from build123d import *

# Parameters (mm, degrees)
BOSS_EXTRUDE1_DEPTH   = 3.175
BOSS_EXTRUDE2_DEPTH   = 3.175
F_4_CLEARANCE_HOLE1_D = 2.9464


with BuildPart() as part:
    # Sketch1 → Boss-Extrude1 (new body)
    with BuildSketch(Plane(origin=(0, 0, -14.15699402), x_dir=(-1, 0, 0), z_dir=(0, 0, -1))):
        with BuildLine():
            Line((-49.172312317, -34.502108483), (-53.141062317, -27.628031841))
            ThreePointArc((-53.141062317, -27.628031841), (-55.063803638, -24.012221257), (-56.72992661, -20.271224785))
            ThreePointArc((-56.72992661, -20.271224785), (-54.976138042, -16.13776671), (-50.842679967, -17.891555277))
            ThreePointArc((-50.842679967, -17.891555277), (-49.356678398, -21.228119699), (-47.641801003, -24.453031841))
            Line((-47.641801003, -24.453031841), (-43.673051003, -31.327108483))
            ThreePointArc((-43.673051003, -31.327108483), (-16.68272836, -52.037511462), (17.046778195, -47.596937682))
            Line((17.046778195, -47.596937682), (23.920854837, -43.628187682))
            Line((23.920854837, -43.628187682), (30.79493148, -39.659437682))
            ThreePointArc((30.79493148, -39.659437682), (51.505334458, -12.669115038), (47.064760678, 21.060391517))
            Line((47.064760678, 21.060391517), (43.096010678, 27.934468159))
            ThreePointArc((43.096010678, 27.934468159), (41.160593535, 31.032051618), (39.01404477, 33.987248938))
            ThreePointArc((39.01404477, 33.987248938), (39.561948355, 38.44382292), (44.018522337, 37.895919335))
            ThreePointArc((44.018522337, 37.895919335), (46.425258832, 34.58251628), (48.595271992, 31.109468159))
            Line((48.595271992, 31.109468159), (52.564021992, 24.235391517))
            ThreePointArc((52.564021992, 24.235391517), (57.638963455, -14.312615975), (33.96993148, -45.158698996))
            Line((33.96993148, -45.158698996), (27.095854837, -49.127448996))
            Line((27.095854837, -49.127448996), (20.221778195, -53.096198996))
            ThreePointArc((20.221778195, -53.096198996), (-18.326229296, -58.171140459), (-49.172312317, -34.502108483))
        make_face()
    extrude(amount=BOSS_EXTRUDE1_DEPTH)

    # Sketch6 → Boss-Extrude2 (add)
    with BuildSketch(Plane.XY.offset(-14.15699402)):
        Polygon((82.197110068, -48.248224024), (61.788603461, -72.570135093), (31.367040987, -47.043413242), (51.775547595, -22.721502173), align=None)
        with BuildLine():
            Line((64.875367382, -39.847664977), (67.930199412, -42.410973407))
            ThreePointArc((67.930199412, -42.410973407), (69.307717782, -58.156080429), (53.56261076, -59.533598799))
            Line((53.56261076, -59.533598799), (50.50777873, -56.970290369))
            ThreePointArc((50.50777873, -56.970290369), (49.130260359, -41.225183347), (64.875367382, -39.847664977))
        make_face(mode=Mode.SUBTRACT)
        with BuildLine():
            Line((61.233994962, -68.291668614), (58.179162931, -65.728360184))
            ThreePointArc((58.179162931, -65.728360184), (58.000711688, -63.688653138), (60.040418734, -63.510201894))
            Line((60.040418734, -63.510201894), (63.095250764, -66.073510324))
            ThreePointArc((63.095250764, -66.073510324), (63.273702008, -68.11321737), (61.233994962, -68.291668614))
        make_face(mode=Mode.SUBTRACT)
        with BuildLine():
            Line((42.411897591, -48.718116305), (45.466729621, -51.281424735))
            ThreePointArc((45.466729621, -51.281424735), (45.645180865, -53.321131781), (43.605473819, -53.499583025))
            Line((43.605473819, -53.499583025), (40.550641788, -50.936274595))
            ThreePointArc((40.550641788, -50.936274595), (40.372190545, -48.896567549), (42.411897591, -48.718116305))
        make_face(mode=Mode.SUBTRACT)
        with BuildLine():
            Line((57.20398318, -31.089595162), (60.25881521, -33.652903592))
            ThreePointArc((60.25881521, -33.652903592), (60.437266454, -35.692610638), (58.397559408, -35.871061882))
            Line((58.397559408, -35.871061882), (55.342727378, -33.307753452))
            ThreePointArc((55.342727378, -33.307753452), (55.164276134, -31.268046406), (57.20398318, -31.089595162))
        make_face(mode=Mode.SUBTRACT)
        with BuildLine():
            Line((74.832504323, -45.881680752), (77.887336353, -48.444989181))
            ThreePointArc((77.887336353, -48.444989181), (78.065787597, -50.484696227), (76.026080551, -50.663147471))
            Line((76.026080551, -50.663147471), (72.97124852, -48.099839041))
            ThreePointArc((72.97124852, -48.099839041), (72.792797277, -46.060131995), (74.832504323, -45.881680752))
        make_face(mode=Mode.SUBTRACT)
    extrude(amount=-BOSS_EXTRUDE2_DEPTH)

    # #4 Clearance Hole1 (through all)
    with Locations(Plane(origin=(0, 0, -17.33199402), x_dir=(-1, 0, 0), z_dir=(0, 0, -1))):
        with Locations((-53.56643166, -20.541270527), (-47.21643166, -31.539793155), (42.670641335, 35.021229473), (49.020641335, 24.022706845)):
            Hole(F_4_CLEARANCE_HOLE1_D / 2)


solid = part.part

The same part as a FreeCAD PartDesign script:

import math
import FreeCAD as App
import Part
import Sketcher

V = App.Vector
Q = App.Units.Quantity

doc = App.newDocument("Part")
body = doc.addObject("PartDesign::Body", "Body")

# Sketch on XY plane
sketch1 = body.newObject("Sketcher::SketchObject", "Sketch")
sketch1.AttachmentSupport = (doc.getObject("XY_Plane"), [""])
sketch1.MapMode = "FlatFace"
sketch1.AttachmentOffset = App.Placement(V(0, 0, -14.156994), App.Rotation())
sketch1.addGeometry([
    Part.LineSegment(V(53.1, -27.6, 0), V(49.2, -34.5, 0)),  # 0
    Part.ArcOfCircle(Part.Circle(V(5.2, -9.1, 0), V(0, 0, 1), 50.8), math.radians(-120), math.radians(-30)),  # 1
    Part.LineSegment(V(-20.2, -53.1, 0), V(-27.1, -49.1, 0)),  # 2
    Part.LineSegment(V(-27.1, -49.1, 0), V(-34, -45.2, 0)),  # 3
    Part.ArcOfCircle(Part.Circle(V(-8.6, -1.2, 0), V(0, 0, 1), 50.8), math.radians(150), math.radians(240)),  # 4
    Part.LineSegment(V(-52.6, 24.2, 0), V(-48.6, 31.1, 0)),  # 5
    Part.ArcOfCircle(Part.Circle(V(2.3, 1.7, 0), V(0, 0, 1), 58.7), math.radians(142.01), math.radians(150)),  # 6
    Part.ArcOfCircle(Part.Circle(V(-41.5, 35.9, 0), V(0, 0, 1), 3.2), math.radians(-38), math.radians(142)),  # 7
    Part.ArcOfCircle(Part.Circle(V(2.3, 1.7, 0), V(0, 0, 1), 52.4), math.radians(142.01), math.radians(150)),  # 8
    Part.LineSegment(V(-43.1, 27.9, 0), V(-47.1, 21.1, 0)),  # 9
    Part.ArcOfCircle(Part.Circle(V(-8.6, -1.2, 0), V(0, 0, 1), 44.5), math.radians(150), math.radians(240)),  # 10
    Part.LineSegment(V(-30.8, -39.7, 0), V(-23.9, -43.6, 0)),  # 11
    Part.LineSegment(V(-23.9, -43.6, 0), V(-17, -47.6, 0)),  # 12
    Part.ArcOfCircle(Part.Circle(V(5.2, -9.1, 0), V(0, 0, 1), 44.5), math.radians(-120), math.radians(-30)),  # 13
    Part.LineSegment(V(43.7, -31.3, 0), V(47.6, -24.5, 0)),  # 14
    Part.ArcOfCircle(Part.Circle(V(2.3, 1.7, 0), V(0, 0, 1), 52.4), math.radians(-30), math.radians(-22.01)),  # 15
    Part.ArcOfCircle(Part.Circle(V(53.8, -19.1, 0), V(0, 0, 1), 3.2), math.radians(-22), math.radians(158)),  # 16
    Part.ArcOfCircle(Part.Circle(V(2.3, 1.7, 0), V(0, 0, 1), 58.7), math.radians(-30), math.radians(-22.01)),  # 17
], False)
sketch1.addConstraint([
    Sketcher.Constraint("Tangent", 0, 2, 1, 2),
    Sketcher.Constraint("Tangent", 1, 1, 2, 1),
    Sketcher.Constraint("Coincident", 2, 2, 3, 1),
    Sketcher.Constraint("Tangent", 3, 2, 4, 2),
    Sketcher.Constraint("Tangent", 4, 1, 5, 1),
    Sketcher.Constraint("Tangent", 5, 2, 6, 2),
    Sketcher.Constraint("Tangent", 6, 1, 7, 2),
    Sketcher.Constraint("Tangent", 7, 1, 8, 1),
    Sketcher.Constraint("Tangent", 8, 2, 9, 1),
    Sketcher.Constraint("Tangent", 9, 2, 10, 1),
    Sketcher.Constraint("Tangent", 10, 2, 11, 1),
    Sketcher.Constraint("Coincident", 11, 2, 12, 1),
    Sketcher.Constraint("Tangent", 12, 2, 13, 1),
    Sketcher.Constraint("Tangent", 13, 2, 14, 1),
    Sketcher.Constraint("Tangent", 14, 2, 15, 1),
    Sketcher.Constraint("Tangent", 15, 2, 16, 2),
    Sketcher.Constraint("Tangent", 16, 1, 17, 2),
    Sketcher.Constraint("Tangent", 17, 1, 0, 1),
    Sketcher.Constraint("Coincident", 8, 3, 6, 3),
    Sketcher.Constraint("Coincident", 10, 3, 4, 3),
    Sketcher.Constraint("Coincident", 13, 3, 1, 3),
    Sketcher.Constraint("Coincident", 15, 3, 6, 3),
    Sketcher.Constraint("Coincident", 17, 3, 6, 3),
    Sketcher.Constraint("Equal", 1, 4),
    Sketcher.Constraint("Equal", 10, 13),
    Sketcher.Constraint("Equal", 8, 15),
    Sketcher.Constraint("Equal", 7, 16),
    Sketcher.Constraint("Perpendicular", 0, 2),
    Sketcher.Constraint("Parallel", 2, 3),
    Sketcher.Constraint("Perpendicular", 3, 5),
    Sketcher.Constraint("Parallel", 5, 9),
    Sketcher.Constraint("Perpendicular", 9, 11),
    Sketcher.Constraint("Equal", 0, 2),
    Sketcher.Constraint("Equal", 2, 3),
    Sketcher.Constraint("Equal", 9, 11),
    Sketcher.Constraint("Radius", 1, Q("2 in")),
    Sketcher.Constraint("Radius", 10, Q("1.75 in")),
    Sketcher.Constraint("Angle", 0, Q("-120 deg")),
    Sketcher.Constraint("Radius", 6, Q("2.3125 in")),
    Sketcher.Constraint("DistanceY", 1, 1, -1, 1, 53.096199),
    Sketcher.Constraint("DistanceX", -1, 1, 14, 2, 47.641801),
    Sketcher.Constraint("DistanceX", 4, 1, 6, 1, 8.5455),
    Sketcher.Constraint("DistanceY", 16, 3, -1, 1, 19.08139),
])
pad1 = body.newObject("PartDesign::Pad", "Pad")
pad1.Profile = sketch1
pad1.Length = Q("0.125 in")
pad1.Reversed = True

# Sketch on XY plane
sketch2 = body.newObject("Sketcher::SketchObject", "Sketch001")
sketch2.AttachmentSupport = (doc.getObject("XY_Plane"), [""])
sketch2.MapMode = "FlatFace"
sketch2.AttachmentOffset = App.Placement(V(0, 0, -14.156994), App.Rotation())
sketch2.addGeometry([
    Part.LineSegment(V(61.8, -72.6, 0), V(82.2, -48.2, 0)),  # 0
    Part.LineSegment(V(82.2, -48.2, 0), V(51.8, -22.7, 0)),  # 1
    Part.LineSegment(V(51.8, -22.7, 0), V(31.4, -47, 0)),  # 2
    Part.LineSegment(V(31.4, -47, 0), V(61.8, -72.6, 0)),  # 3
    Part.LineSegment(V(61.2, -68.3, 0), V(58.2, -65.7, 0)),  # 4
    Part.ArcOfCircle(Part.Circle(V(59.1, -64.6, 0), V(0, 0, 1), 1.4), math.radians(50), math.radians(230)),  # 5
    Part.LineSegment(V(60, -63.5, 0), V(63.1, -66.1, 0)),  # 6
    Part.ArcOfCircle(Part.Circle(V(62.2, -67.2, 0), V(0, 0, 1), 1.4), math.radians(-130), math.radians(50)),  # 7
    Part.LineSegment(V(42.4, -48.7, 0), V(45.5, -51.3, 0)),  # 8
    Part.ArcOfCircle(Part.Circle(V(44.5, -52.4, 0), V(0, 0, 1), 1.4), math.radians(-130), math.radians(50)),  # 9
    Part.LineSegment(V(43.6, -53.5, 0), V(40.6, -50.9, 0)),  # 10
    Part.ArcOfCircle(Part.Circle(V(41.5, -49.8, 0), V(0, 0, 1), 1.4), math.radians(50), math.radians(230)),  # 11
    Part.LineSegment(V(74.8, -45.9, 0), V(77.9, -48.4, 0)),  # 12
    Part.ArcOfCircle(Part.Circle(V(77, -49.6, 0), V(0, 0, 1), 1.4), math.radians(-130), math.radians(50)),  # 13
    Part.LineSegment(V(76, -50.7, 0), V(73, -48.1, 0)),  # 14
    Part.ArcOfCircle(Part.Circle(V(73.9, -47, 0), V(0, 0, 1), 1.4), math.radians(50), math.radians(230)),  # 15
    Part.LineSegment(V(64.9, -39.8, 0), V(67.9, -42.4, 0)),  # 16
    Part.ArcOfCircle(Part.Circle(V(60.7, -51, 0), V(0, 0, 1), 11.2), math.radians(-130), math.radians(50)),  # 17
    Part.LineSegment(V(53.6, -59.5, 0), V(50.5, -57, 0)),  # 18
    Part.ArcOfCircle(Part.Circle(V(57.7, -48.4, 0), V(0, 0, 1), 11.2), math.radians(50), math.radians(230)),  # 19
    Part.LineSegment(V(57.2, -31.1, 0), V(60.3, -33.7, 0)),  # 20
    Part.ArcOfCircle(Part.Circle(V(59.3, -34.8, 0), V(0, 0, 1), 1.4), math.radians(-130), math.radians(50)),  # 21
    Part.LineSegment(V(58.4, -35.9, 0), V(55.3, -33.3, 0)),  # 22
    Part.ArcOfCircle(Part.Circle(V(56.3, -32.2, 0), V(0, 0, 1), 1.4), math.radians(50), math.radians(230)),  # 23
], False)
sketch2.addConstraint([
    Sketcher.Constraint("Coincident", 0, 2, 1, 1),
    Sketcher.Constraint("Coincident", 1, 2, 2, 1),
    Sketcher.Constraint("Coincident", 2, 2, 3, 1),
    Sketcher.Constraint("Coincident", 3, 2, 0, 1),
    Sketcher.Constraint("Tangent", 4, 2, 5, 2),
    Sketcher.Constraint("Tangent", 5, 1, 6, 1),
    Sketcher.Constraint("Tangent", 6, 2, 7, 2),
    Sketcher.Constraint("Tangent", 7, 1, 4, 1),
    Sketcher.Constraint("Tangent", 8, 2, 9, 2),
    Sketcher.Constraint("Tangent", 9, 1, 10, 1),
    Sketcher.Constraint("Tangent", 10, 2, 11, 2),
    Sketcher.Constraint("Tangent", 11, 1, 8, 1),
    Sketcher.Constraint("Tangent", 12, 2, 13, 2),
    Sketcher.Constraint("Tangent", 13, 1, 14, 1),
    Sketcher.Constraint("Tangent", 14, 2, 15, 2),
    Sketcher.Constraint("Tangent", 15, 1, 12, 1),
    Sketcher.Constraint("Tangent", 16, 2, 17, 2),
    Sketcher.Constraint("Tangent", 17, 1, 18, 1),
    Sketcher.Constraint("Tangent", 18, 2, 19, 2),
    Sketcher.Constraint("Tangent", 19, 1, 16, 1),
    Sketcher.Constraint("Tangent", 20, 2, 21, 2),
    Sketcher.Constraint("Tangent", 21, 1, 22, 1),
    Sketcher.Constraint("Tangent", 22, 2, 23, 2),
    Sketcher.Constraint("Tangent", 23, 1, 20, 1),
    Sketcher.Constraint("Equal", 5, 7),
    Sketcher.Constraint("Equal", 7, 9),
    Sketcher.Constraint("Equal", 9, 11),
    Sketcher.Constraint("Equal", 11, 13),
    Sketcher.Constraint("Equal", 13, 15),
    Sketcher.Constraint("Equal", 17, 19),
    Sketcher.Constraint("Equal", 15, 21),
    Sketcher.Constraint("Equal", 21, 23),
    Sketcher.Constraint("Perpendicular", 0, 1),
    Sketcher.Constraint("Perpendicular", 1, 2),
    Sketcher.Constraint("Perpendicular", 2, 3),
    Sketcher.Constraint("Parallel", 3, 4),
    Sketcher.Constraint("Parallel", 6, 8),
    Sketcher.Constraint("Parallel", 10, 12),
    Sketcher.Constraint("Parallel", 14, 16),
    Sketcher.Constraint("Parallel", 18, 20),
    Sketcher.Constraint("Equal", 6, 8),
    Sketcher.Constraint("Equal", 10, 12),
    Sketcher.Constraint("Equal", 14, 16),
    Sketcher.Constraint("Equal", 18, 20),
    Sketcher.Constraint("Radius", 17, Q("0.44 in")),
    Sketcher.Constraint("Angle", 0, Q("50 deg")),
    Sketcher.Constraint("Radius", 5, Q("0.057 in")),
    Sketcher.Constraint("Distance", 0, Q("1.25 in")),
    Sketcher.Constraint("Distance", 4, Q("0.157 in")),
    Sketcher.Constraint("DistanceY", 23, 1, -1, 1, Q("1.2239998 in")),
    Sketcher.Constraint("DistanceY", 17, 3, 12, 2, Q("0.0994999 in")),
    Sketcher.Constraint("DistanceX", -1, 1, 9, 3, 44.536102),
    Sketcher.Constraint("DistanceY", 5, 1, -1, 1, 63.510202),
    Sketcher.Constraint("DistanceX", -1, 1, 16, 2, 67.930199),
    Sketcher.Constraint("DistanceY", 17, 1, -1, 1, 59.533599),
    Sketcher.Constraint("DistanceX", 13, 3, 0, 2, 5.240402),
    Sketcher.Constraint("DistanceX", 17, 3, 3, 2, 1.042198),
    Sketcher.Constraint("DistanceX", 2, 2, 10, 2, 9.183601),
    Sketcher.Constraint("DistanceY", 20, 2, 1, 2, 10.931401),
    Sketcher.Constraint("DistanceX", -1, 1, 5, 3, 59.109791),
    Sketcher.Constraint("DistanceX", -1, 1, 21, 1, 58.397559),
    Sketcher.Constraint("DistanceY", 9, 3, 21, 3, 17.628521),
])
pad2 = body.newObject("PartDesign::Pad", "Pad001")
pad2.Profile = sketch2
pad2.Length = Q("0.125 in")
pad2.Reversed = True

# Sketch on XY plane
sketch3 = body.newObject("Sketcher::SketchObject", "Sketch002")
sketch3.AttachmentSupport = (doc.getObject("XY_Plane"), [""])
sketch3.MapMode = "FlatFace"
sketch3.AttachmentOffset = App.Placement(V(0, 0, -17.331994), App.Rotation())
sketch3.addGeometry([
    Part.Circle(V(53.6, -20.5, 0), V(0, 0, 1), 1.5),
    Part.Circle(V(47.2, -31.5, 0), V(0, 0, 1), 1.5),
    Part.Circle(V(-42.7, 35, 0), V(0, 0, 1), 1.5),
    Part.Circle(V(-49, 24, 0), V(0, 0, 1), 1.5),
], False)
sketch3.addConstraint([
    Sketcher.Constraint("Equal", 0, 1),
    Sketcher.Constraint("Equal", 1, 2),
    Sketcher.Constraint("Equal", 2, 3),
    Sketcher.Constraint("Diameter", 0, Q("0.116 in")),
    Sketcher.Constraint("DistanceX", 1, 3, 0, 3, Q("0.25 in")),
    Sketcher.Constraint("DistanceX", 3, 3, 2, 3, Q("0.25 in")),
    Sketcher.Constraint("DistanceY", 0, 3, 2, 3, Q("2.1875 in")),
    Sketcher.Constraint("DistanceY", 1, 3, 3, 3, Q("2.1875 in")),
    Sketcher.Constraint("DistanceX", -1, 1, 0, 3, 53.566432),
    Sketcher.Constraint("DistanceY", 0, 3, -1, 1, 20.541271),
    Sketcher.Constraint("DistanceX", 2, 3, -1, 1, 42.670641),
    Sketcher.Constraint("DistanceY", 1, 3, -1, 1, 31.539793),
])
doc.recompute()
hole = body.newObject("PartDesign::Hole", "Hole")
hole.Profile = sketch3
hole.ThreadType = "None"
hole.Diameter = Q("0.116 in")
hole.DepthType = "ThroughAll"
hole.Reversed = True

doc.recompute()
